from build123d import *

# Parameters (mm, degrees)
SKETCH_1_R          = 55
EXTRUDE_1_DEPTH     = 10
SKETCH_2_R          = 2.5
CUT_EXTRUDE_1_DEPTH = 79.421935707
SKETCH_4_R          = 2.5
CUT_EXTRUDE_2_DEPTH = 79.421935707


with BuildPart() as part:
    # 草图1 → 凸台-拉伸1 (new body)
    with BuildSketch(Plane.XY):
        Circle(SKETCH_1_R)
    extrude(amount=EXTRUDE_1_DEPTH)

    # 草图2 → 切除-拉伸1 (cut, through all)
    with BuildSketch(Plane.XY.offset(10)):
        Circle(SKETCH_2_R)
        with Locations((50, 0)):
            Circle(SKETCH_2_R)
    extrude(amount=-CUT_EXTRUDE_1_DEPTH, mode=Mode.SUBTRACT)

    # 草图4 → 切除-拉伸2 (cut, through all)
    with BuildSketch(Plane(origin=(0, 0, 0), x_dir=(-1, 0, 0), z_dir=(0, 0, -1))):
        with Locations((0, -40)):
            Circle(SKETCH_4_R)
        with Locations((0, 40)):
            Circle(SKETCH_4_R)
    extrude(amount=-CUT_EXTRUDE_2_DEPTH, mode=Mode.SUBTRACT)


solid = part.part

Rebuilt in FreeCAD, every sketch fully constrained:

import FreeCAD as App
import Part
import Sketcher

V = App.Vector
Q = App.Units.Quantity

doc = App.newDocument("Part")
body = doc.addObject("PartDesign::Body", "Body")

sketch1 = body.newObject("Sketcher::SketchObject", "Sketch")
sketch1.AttachmentSupport = (doc.getObject("XY_Plane"), [""])
sketch1.MapMode = "FlatFace"
sketch1.addGeometry(Part.Circle(V(0, 0, 0), V(0, 0, 1), 55), False)
sketch1.addConstraint([
    Sketcher.Constraint("Coincident", 0, 3, -1, 1),
    Sketcher.Constraint("Diameter", 0, Q("110 mm")),
])
pad1 = body.newObject("PartDesign::Pad", "Pad")
pad1.Profile = sketch1
pad1.Length = 10

sketch2 = body.newObject("Sketcher::SketchObject", "Sketch001")
sketch2.AttachmentSupport = (doc.getObject("XY_Plane"), [""])
sketch2.MapMode = "FlatFace"
sketch2.AttachmentOffset = App.Placement(V(0, 0, 10), App.Rotation())
sketch2.addGeometry([
    Part.Circle(V(0, 0, 0), V(0, 0, 1), 2.5),
    Part.Circle(V(50, 0, 0), V(0, 0, 1), 2.5),
], False)
sketch2.addConstraint([
    Sketcher.Constraint("Coincident", 0, 3, -1, 1),
    Sketcher.Constraint("Equal", 0, 1),
    Sketcher.Constraint("PointOnObject", 1, 3, -1),
    Sketcher.Constraint("Diameter", 0, Q("5 mm")),
    Sketcher.Constraint("DistanceX", -1, 1, 1, 3, Q("50 mm")),
])
pocket1 = body.newObject("PartDesign::Pocket", "Pocket")
pocket1.Profile = sketch2
pocket1.Type = "ThroughAll"

sketch3 = body.newObject("Sketcher::SketchObject", "Sketch002")
sketch3.AttachmentSupport = (doc.getObject("XY_Plane"), [""])
sketch3.MapMode = "FlatFace"
sketch3.addGeometry([
    Part.Circle(V(0, -40, 0), V(0, 0, 1), 2.5),
    Part.Circle(V(0, 40, 0), V(0, 0, 1), 2.5),
], False)
sketch3.addConstraint([
    Sketcher.Constraint("Equal", 0, 1),
    Sketcher.Constraint("Symmetric", 0, 3, 1, 3, -1, 1),
    Sketcher.Constraint("PointOnObject", 0, 3, -2),
    Sketcher.Constraint("Diameter", 0, Q("5 mm")),
    Sketcher.Constraint("DistanceY", 0, 3, -1, 1, Q("40 mm")),
])
pocket2 = body.newObject("PartDesign::Pocket", "Pocket001")
pocket2.Profile = sketch3
pocket2.Type = "ThroughAll"
pocket2.Reversed = True

doc.recompute()
